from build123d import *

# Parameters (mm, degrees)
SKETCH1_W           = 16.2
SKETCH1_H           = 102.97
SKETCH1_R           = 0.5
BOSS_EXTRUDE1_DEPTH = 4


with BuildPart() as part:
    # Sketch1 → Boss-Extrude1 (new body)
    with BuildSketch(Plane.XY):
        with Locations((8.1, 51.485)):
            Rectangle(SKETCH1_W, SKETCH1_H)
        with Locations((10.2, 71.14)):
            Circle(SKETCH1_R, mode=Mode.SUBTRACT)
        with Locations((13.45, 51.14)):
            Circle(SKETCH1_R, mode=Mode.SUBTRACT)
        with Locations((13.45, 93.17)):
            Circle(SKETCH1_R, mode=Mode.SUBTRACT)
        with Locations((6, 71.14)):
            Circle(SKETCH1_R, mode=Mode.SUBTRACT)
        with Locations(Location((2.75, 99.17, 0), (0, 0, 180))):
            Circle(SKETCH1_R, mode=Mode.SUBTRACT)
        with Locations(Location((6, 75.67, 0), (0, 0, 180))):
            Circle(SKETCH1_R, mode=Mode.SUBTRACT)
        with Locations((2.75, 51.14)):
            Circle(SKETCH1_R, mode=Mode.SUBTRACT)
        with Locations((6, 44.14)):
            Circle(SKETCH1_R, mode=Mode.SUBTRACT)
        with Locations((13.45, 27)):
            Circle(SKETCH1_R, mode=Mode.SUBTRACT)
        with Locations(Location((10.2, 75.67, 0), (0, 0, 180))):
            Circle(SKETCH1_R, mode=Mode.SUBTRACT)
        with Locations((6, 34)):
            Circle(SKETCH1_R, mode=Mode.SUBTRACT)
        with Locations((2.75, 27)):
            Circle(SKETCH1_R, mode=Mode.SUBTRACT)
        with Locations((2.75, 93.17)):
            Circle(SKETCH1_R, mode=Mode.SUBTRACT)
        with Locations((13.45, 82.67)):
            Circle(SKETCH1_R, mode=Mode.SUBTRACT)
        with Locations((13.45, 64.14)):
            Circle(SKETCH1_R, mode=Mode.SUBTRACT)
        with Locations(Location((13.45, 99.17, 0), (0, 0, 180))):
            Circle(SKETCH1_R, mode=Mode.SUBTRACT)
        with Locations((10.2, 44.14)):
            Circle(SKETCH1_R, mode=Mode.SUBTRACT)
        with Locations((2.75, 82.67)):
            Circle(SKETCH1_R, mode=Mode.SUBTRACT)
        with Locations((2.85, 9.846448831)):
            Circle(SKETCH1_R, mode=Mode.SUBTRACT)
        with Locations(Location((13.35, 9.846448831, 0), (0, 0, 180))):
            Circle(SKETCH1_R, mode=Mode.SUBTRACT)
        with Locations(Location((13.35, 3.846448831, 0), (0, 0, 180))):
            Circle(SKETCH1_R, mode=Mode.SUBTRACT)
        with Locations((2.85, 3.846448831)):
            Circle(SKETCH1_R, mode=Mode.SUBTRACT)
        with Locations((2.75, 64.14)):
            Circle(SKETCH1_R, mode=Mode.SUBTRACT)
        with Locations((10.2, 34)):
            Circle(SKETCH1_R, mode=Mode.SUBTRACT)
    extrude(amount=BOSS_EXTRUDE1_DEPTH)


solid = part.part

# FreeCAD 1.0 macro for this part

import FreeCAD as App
import Part
import Sketcher
Q = App.Units.Quantity

doc = App.newDocument("Part")
params = doc.addObject("Spreadsheet::Sheet", "Params")
for row, (alias, value) in enumerate([
    ("sketch1_diameter", "1 mm"),
    ("sketch1_width", "16.2 mm"),
    ("sketch1_height", "102.97 mm"),
    ("pad1_length", "4 mm"),
], start=1):
    params.set(f"A{row}", alias)
    params.set(f"B{row}", "=" + value)
    params.setAlias(f"B{row}", alias)

body = doc.addObject("PartDesign::Body", "Body")

sketch1 = body.newObject("Sketcher::SketchObject", "Sketch")
sketch1.AttachmentSupport = (doc.getObject("XY_Plane"), [""])
sketch1.MapMode = "FlatFace"
sketch1.addGeometry([
    Part.LineSegment(App.Vector(0, 102.97, 0), App.Vector(0, 0, 0)),
    Part.LineSegment(App.Vector(0, 0, 0), App.Vector(16.2, 0, 0)),
    Part.LineSegment(App.Vector(16.2, 0, 0), App.Vector(16.2, 102.97, 0)),
    Part.LineSegment(App.Vector(16.2, 102.97, 0), App.Vector(0, 102.97, 0)),
    Part.Circle(App.Vector(2.85, 3.846449, 0), App.Vector(0, 0, 1), 0.5),
    Part.Circle(App.Vector(2.85, 9.846449, 0), App.Vector(0, 0, 1), 0.5),
    Part.Circle(App.Vector(2.75, 27, 0), App.Vector(0, 0, 1), 0.5),
    Part.Circle(App.Vector(2.75, 51.14, 0), App.Vector(0, 0, 1), 0.5),
    Part.Circle(App.Vector(6, 34, 0), App.Vector(0, 0, 1), 0.5),
    Part.Circle(App.Vector(6, 44.14, 0), App.Vector(0, 0, 1), 0.5),
    Part.Circle(App.Vector(13.35, 3.846449, 0), App.Vector(0, 0, 1), 0.5),
    Part.Circle(App.Vector(13.35, 9.846449, 0), App.Vector(0, 0, 1), 0.5),
    Part.Circle(App.Vector(13.45, 27, 0), App.Vector(0, 0, 1), 0.5),
    Part.Circle(App.Vector(10.2, 34, 0), App.Vector(0, 0, 1), 0.5),
    Part.Circle(App.Vector(10.2, 44.14, 0), App.Vector(0, 0, 1), 0.5),
    Part.Circle(App.Vector(13.45, 51.14, 0), App.Vector(0, 0, 1), 0.5),
    Part.Circle(App.Vector(2.75, 64.14, 0), App.Vector(0, 0, 1), 0.5),
    Part.Circle(App.Vector(6, 71.14, 0), App.Vector(0, 0, 1), 0.5),
    Part.Circle(App.Vector(2.75, 82.67, 0), App.Vector(0, 0, 1), 0.5),
    Part.Circle(App.Vector(2.75, 93.17, 0), App.Vector(0, 0, 1), 0.5),
    Part.Circle(App.Vector(2.75, 99.17, 0), App.Vector(0, 0, 1), 0.5),
    Part.Circle(App.Vector(6, 75.67, 0), App.Vector(0, 0, 1), 0.5),
    Part.Circle(App.Vector(10.2, 71.14, 0), App.Vector(0, 0, 1), 0.5),
    Part.Circle(App.Vector(13.45, 64.14, 0), App.Vector(0, 0, 1), 0.5),
    Part.Circle(App.Vector(10.2, 75.67, 0), App.Vector(0, 0, 1), 0.5),
    Part.Circle(App.Vector(13.45, 82.67, 0), App.Vector(0, 0, 1), 0.5),
    Part.Circle(App.Vector(13.45, 93.17, 0), App.Vector(0, 0, 1), 0.5),
    Part.Circle(App.Vector(13.45, 99.17, 0), App.Vector(0, 0, 1), 0.5),
], False)
sketch1.addConstraint([
    Sketcher.Constraint("Coincident", 0, 2, 1, 1),
    Sketcher.Constraint("Coincident", 1, 2, 2, 1),
    Sketcher.Constraint("Coincident", 2, 2, 3, 1),
    Sketcher.Constraint("Coincident", 3, 2, 0, 1),
    Sketcher.Constraint("Vertical", 0),
    Sketcher.Constraint("Horizontal", 1),
    Sketcher.Constraint("Vertical", 2),
    Sketcher.Constraint("Horizontal", 3),
    Sketcher.Constraint("Coincident", 0, 2, -1, 1),
    Sketcher.Constraint("Equal", 4, 5),
    Sketcher.Constraint("Equal", 5, 6),
    Sketcher.Constraint("Equal", 6, 7),
    Sketcher.Constraint("Equal", 7, 8),
    Sketcher.Constraint("Equal", 8, 9),
    Sketcher.Constraint("Equal", 9, 10),
    Sketcher.Constraint("Equal", 10, 11),
    Sketcher.Constraint("Equal", 11, 12),
    Sketcher.Constraint("Equal", 12, 13),
    Sketcher.Constraint("Equal", 13, 14),
    Sketcher.Constraint("Equal", 14, 15),
    Sketcher.Constraint("Equal", 15, 16),
    Sketcher.Constraint("Equal", 16, 17),
    Sketcher.Constraint("Equal", 17, 18),
    Sketcher.Constraint("Equal", 18, 19),
    Sketcher.Constraint("Equal", 19, 20),
    Sketcher.Constraint("Equal", 20, 21),
    Sketcher.Constraint("Equal", 21, 22),
    Sketcher.Constraint("Equal", 22, 23),
    Sketcher.Constraint("Equal", 23, 24),
    Sketcher.Constraint("Equal", 24, 25),
    Sketcher.Constraint("Equal", 25, 26),
    Sketcher.Constraint("Equal", 26, 27),
    Sketcher.Constraint("Horizontal", 4, 3, 10, 3),
    Sketcher.Constraint("Horizontal", 5, 3, 11, 3),
    Sketcher.Constraint("Horizontal", 6, 3, 12, 3),
    Sketcher.Constraint("Horizontal", 8, 3, 13, 3),
    Sketcher.Constraint("Horizontal", 9, 3, 14, 3),
    Sketcher.Constraint("Horizontal", 7, 3, 15, 3),
    Sketcher.Constraint("Horizontal", 17, 3, 22, 3),
    Sketcher.Constraint("Horizontal", 16, 3, 23, 3),
    Sketcher.Constraint("Horizontal", 21, 3, 24, 3),
    Sketcher.Constraint("Horizontal", 18, 3, 25, 3),
    Sketcher.Constraint("Horizontal", 19, 3, 26, 3),
    Sketcher.Constraint("Horizontal", 20, 3, 27, 3),
    Sketcher.Constraint("Vertical", 4, 3, 5, 3),
    Sketcher.Constraint("Vertical", 6, 3, 7, 3),
    Sketcher.Constraint("Vertical", 8, 3, 9, 3),
    Sketcher.Constraint("Vertical", 10, 3, 11, 3),
    Sketcher.Constraint("Vertical", 13, 3, 14, 3),
    Sketcher.Constraint("Vertical", 12, 3, 15, 3),
    Sketcher.Constraint("Vertical", 7, 3, 16, 3),
    Sketcher.Constraint("Vertical", 9, 3, 17, 3),
    Sketcher.Constraint("Vertical", 16, 3, 18, 3),
    Sketcher.Constraint("Vertical", 18, 3, 19, 3),
    Sketcher.Constraint("Vertical", 19, 3, 20, 3),
    Sketcher.Constraint("Vertical", 17, 3, 21, 3),
    Sketcher.Constraint("Vertical", 14, 3, 22, 3),
    Sketcher.Constraint("Vertical", 15, 3, 23, 3),
    Sketcher.Constraint("Vertical", 22, 3, 24, 3),
    Sketcher.Constraint("Vertical", 23, 3, 25, 3),
    Sketcher.Constraint("Vertical", 25, 3, 26, 3),
    Sketcher.Constraint("Vertical", 26, 3, 27, 3),
    Sketcher.Constraint("Diameter", 4, Q("1 mm")),
    Sketcher.Constraint("DistanceX", 1, 1, 1, 2, Q("16.2 mm")),
    Sketcher.Constraint("DistanceY", -1, 1, 6, 3, Q("27 mm")),
    Sketcher.Constraint("DistanceX", -1, 1, 8, 3, Q("6 mm")),
    Sketcher.Constraint("DistanceY", -1, 1, 8, 3, Q("34 mm")),
    Sketcher.Constraint("DistanceY", 4, 3, 5, 3, Q("6 mm")),
    Sketcher.Constraint("DistanceY", 9, 3, 7, 3, Q("7 mm")),
    Sketcher.Constraint("DistanceY", 7, 3, 16, 3, Q("13 mm")),
    Sketcher.Constraint("DistanceY", 16, 3, 17, 3, Q("7 mm")),
    Sketcher.Constraint("DistanceY", 19, 3, 20, 3, Q("6 mm")),
    Sketcher.Constraint("DistanceY", 21, 3, 18, 3, Q("7 mm")),
    Sketcher.Constraint("DistanceY", 0, 2, 0, 1, Q("102.97 mm")),
    Sketcher.Constraint("DistanceX", -1, 1, 13, 3, Q("10.2 mm")),
    Sketcher.Constraint("DistanceX", 6, 3, 5, 3, Q("0.1 mm")),
    Sketcher.Constraint("DistanceX", 4, 3, 10, 3, Q("10.5 mm")),
    Sketcher.Constraint("DistanceX", 6, 3, 12, 3, Q("10.7 mm")),
    Sketcher.Constraint("DistanceY", 18, 3, 19, 3, Q("10.5 mm")),
    Sketcher.Constraint("DistanceY", 27, 3, 2, 2, Q("3.8 mm")),
    Sketcher.Constraint("DistanceX", -1, 1, 4, 3, Q("2.85 mm")),
    Sketcher.Constraint("DistanceY", -1, 1, 7, 3, Q("51.14 mm")),
    Sketcher.Constraint("DistanceY", -1, 1, 4, 3, Q("3.846449 mm")),
])
sketch1.setExpression("Constraints[62]", "Params.sketch1_diameter")
sketch1.setExpression("Constraints[63]", "Params.sketch1_width")
sketch1.setExpression("Constraints[73]", "Params.sketch1_height")
pad1 = body.newObject("PartDesign::Pad", "Pad")
pad1.Profile = sketch1
pad1.setExpression("Length", "Params.pad1_length")

doc.recompute()
